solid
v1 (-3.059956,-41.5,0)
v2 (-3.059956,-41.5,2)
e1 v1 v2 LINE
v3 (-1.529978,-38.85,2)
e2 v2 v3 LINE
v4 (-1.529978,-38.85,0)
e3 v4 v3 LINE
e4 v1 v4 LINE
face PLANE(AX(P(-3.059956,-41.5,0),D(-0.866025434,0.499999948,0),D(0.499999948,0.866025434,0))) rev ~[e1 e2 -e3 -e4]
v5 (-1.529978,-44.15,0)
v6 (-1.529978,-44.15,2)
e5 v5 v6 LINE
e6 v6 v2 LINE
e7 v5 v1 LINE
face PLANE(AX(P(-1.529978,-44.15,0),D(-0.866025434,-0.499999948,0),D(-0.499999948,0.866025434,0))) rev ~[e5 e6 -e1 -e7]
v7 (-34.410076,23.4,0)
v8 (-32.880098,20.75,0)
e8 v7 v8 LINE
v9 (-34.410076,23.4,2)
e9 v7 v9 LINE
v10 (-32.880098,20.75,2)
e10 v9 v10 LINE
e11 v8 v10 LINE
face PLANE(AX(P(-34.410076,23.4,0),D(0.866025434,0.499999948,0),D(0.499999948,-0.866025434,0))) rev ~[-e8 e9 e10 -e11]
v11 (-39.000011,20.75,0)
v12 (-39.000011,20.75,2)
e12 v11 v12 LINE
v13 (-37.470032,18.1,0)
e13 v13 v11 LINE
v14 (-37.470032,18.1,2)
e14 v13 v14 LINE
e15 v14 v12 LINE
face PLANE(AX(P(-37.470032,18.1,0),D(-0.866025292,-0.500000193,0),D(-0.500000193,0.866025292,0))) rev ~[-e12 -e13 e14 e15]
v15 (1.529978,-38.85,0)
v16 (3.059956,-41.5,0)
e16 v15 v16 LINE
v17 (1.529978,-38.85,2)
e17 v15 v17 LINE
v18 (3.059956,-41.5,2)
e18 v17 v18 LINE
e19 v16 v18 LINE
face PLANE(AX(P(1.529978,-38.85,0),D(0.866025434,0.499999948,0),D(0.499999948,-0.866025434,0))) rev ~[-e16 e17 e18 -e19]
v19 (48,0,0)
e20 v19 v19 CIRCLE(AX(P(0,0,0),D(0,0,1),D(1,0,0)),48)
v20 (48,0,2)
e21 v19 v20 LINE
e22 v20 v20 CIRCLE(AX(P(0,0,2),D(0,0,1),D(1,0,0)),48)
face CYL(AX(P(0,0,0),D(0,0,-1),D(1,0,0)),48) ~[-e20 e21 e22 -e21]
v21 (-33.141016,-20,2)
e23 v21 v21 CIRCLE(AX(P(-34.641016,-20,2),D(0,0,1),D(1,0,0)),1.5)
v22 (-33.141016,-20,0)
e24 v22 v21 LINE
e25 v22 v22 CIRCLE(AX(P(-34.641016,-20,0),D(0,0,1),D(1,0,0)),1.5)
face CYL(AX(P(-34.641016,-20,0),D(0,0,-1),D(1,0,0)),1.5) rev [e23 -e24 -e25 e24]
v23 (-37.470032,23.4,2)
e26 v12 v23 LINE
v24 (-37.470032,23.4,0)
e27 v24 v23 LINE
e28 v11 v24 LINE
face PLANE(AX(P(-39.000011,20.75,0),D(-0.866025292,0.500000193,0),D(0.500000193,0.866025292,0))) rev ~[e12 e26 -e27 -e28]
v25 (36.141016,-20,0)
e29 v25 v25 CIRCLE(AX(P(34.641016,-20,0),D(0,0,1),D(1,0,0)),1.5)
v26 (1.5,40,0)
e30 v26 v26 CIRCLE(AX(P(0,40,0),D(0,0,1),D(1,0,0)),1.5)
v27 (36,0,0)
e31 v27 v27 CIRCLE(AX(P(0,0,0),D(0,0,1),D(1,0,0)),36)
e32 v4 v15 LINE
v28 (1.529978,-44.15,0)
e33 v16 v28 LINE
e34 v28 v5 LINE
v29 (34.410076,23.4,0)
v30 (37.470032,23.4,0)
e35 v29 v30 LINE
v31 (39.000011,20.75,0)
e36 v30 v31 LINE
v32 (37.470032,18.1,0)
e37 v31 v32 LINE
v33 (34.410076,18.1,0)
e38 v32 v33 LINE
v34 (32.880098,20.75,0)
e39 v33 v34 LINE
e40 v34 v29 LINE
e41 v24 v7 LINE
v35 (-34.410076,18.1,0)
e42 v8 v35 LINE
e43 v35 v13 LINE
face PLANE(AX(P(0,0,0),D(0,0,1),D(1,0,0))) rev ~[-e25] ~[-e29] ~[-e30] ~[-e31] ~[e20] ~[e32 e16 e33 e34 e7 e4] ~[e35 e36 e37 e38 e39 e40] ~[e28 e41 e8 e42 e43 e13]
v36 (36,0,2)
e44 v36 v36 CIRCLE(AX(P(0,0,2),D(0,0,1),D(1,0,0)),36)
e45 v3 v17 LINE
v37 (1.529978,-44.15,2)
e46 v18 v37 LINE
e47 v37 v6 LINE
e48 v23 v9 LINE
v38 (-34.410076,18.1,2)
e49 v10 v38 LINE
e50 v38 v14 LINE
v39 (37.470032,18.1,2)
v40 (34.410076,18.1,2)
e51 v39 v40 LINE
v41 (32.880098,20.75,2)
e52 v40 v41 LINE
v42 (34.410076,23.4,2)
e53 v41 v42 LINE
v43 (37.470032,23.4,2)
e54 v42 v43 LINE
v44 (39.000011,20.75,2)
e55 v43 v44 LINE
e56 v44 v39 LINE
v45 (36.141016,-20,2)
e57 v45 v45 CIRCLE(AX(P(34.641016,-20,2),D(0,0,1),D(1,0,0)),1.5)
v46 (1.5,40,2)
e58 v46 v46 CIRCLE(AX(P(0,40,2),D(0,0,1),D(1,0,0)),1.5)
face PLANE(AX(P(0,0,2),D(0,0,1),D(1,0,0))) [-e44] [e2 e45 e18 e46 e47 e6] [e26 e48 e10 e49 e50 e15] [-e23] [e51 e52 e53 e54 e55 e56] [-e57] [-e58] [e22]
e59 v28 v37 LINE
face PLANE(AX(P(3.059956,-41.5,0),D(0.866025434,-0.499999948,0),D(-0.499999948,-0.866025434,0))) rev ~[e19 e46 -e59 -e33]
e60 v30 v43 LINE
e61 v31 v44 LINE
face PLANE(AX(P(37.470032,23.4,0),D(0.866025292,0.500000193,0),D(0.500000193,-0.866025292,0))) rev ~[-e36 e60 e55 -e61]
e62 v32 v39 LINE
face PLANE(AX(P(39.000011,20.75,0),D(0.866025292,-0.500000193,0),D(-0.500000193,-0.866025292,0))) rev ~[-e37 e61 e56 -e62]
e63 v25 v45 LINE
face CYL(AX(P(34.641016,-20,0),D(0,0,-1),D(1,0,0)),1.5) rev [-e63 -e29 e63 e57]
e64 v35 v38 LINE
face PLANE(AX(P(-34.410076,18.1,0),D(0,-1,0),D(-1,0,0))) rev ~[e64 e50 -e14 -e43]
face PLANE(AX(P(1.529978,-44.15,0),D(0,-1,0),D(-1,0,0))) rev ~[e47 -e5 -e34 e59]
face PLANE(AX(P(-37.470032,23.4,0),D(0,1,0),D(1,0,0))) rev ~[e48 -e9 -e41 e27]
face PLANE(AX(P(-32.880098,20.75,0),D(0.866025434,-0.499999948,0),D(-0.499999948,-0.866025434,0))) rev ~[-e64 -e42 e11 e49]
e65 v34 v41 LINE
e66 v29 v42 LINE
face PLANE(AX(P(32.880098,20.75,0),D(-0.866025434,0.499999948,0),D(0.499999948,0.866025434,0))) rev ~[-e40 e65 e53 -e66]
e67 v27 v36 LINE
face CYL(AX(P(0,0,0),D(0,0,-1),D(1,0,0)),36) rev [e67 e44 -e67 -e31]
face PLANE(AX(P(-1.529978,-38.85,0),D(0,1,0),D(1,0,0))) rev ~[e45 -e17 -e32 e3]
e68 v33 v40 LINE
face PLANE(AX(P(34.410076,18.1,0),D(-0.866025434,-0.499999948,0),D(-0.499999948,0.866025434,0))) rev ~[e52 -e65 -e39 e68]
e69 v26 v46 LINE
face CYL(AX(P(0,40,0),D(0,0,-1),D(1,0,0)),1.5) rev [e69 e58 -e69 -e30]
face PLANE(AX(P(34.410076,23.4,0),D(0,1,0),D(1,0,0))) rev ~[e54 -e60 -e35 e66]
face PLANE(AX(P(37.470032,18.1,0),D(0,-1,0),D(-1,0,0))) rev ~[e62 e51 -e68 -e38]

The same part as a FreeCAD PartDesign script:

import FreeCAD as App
import Part
import Sketcher

V = App.Vector
Q = App.Units.Quantity

doc = App.newDocument("Part")
body = doc.addObject("PartDesign::Body", "Body")

# Sketch on XY plane
sketch1 = body.newObject("Sketcher::SketchObject", "Sketch")
sketch1.AttachmentSupport = (doc.getObject("XY_Plane"), [""])
sketch1.MapMode = "FlatFace"
sketch1.addGeometry([
    Part.Circle(V(0, 0, 0), V(0, 0, 1), 48),  # 0
    Part.Circle(V(-34.641016, -20, 0), V(0, 0, 1), 1.5),  # 1
    Part.LineSegment(V(-1.529978, -44.15, 0), V(-3.059956, -41.5, 0)),  # 2
    Part.LineSegment(V(-3.059956, -41.5, 0), V(-1.529978, -38.85, 0)),  # 3
    Part.LineSegment(V(-1.529978, -38.85, 0), V(1.529978, -38.85, 0)),  # 4
    Part.LineSegment(V(1.529978, -38.85, 0), V(3.059956, -41.5, 0)),  # 5
    Part.LineSegment(V(3.059956, -41.5, 0), V(1.529978, -44.15, 0)),  # 6
    Part.LineSegment(V(1.529978, -44.15, 0), V(-1.529978, -44.15, 0)),  # 7
    Part.Circle(V(34.641016, -20, 0), V(0, 0, 1), 1.5),  # 8
    Part.LineSegment(V(-34.410076, 23.4, 0), V(-32.880098, 20.75, 0)),  # 9
    Part.LineSegment(V(-32.880098, 20.75, 0), V(-34.410076, 18.1, 0)),  # 10
    Part.LineSegment(V(-34.410076, 18.1, 0), V(-37.470032, 18.1, 0)),  # 11
    Part.LineSegment(V(-37.470032, 18.1, 0), V(-39.000011, 20.75, 0)),  # 12
    Part.LineSegment(V(-39.000011, 20.75, 0), V(-37.470032, 23.4, 0)),  # 13
    Part.LineSegment(V(-37.470032, 23.4, 0), V(-34.410076, 23.4, 0)),  # 14
    Part.Circle(V(0, 0, 0), V(0, 0, 1), 36),  # 15
    Part.Circle(V(0, 40, 0), V(0, 0, 1), 1.5),  # 16
    Part.LineSegment(V(37.470032, 18.1, 0), V(34.410076, 18.1, 0)),  # 17
    Part.LineSegment(V(34.410076, 18.1, 0), V(32.880098, 20.75, 0)),  # 18
    Part.LineSegment(V(32.880098, 20.75, 0), V(34.410076, 23.4, 0)),  # 19
    Part.LineSegment(V(34.410076, 23.4, 0), V(37.470032, 23.4, 0)),  # 20
    Part.LineSegment(V(37.470032, 23.4, 0), V(39.000011, 20.75, 0)),  # 21
    Part.LineSegment(V(39.000011, 20.75, 0), V(37.470032, 18.1, 0)),  # 22
], False)
sketch1.addConstraint([
    Sketcher.Constraint("Coincident", 2, 2, 3, 1),
    Sketcher.Constraint("Coincident", 3, 2, 4, 1),
    Sketcher.Constraint("Coincident", 4, 2, 5, 1),
    Sketcher.Constraint("Coincident", 5, 2, 6, 1),
    Sketcher.Constraint("Coincident", 6, 2, 7, 1),
    Sketcher.Constraint("Coincident", 7, 2, 2, 1),
    Sketcher.Constraint("Coincident", 9, 2, 10, 1),
    Sketcher.Constraint("Coincident", 10, 2, 11, 1),
    Sketcher.Constraint("Coincident", 11, 2, 12, 1),
    Sketcher.Constraint("Coincident", 12, 2, 13, 1),
    Sketcher.Constraint("Coincident", 13, 2, 14, 1),
    Sketcher.Constraint("Coincident", 14, 2, 9, 1),
    Sketcher.Constraint("Coincident", 17, 2, 18, 1),
    Sketcher.Constraint("Coincident", 18, 2, 19, 1),
    Sketcher.Constraint("Coincident", 19, 2, 20, 1),
    Sketcher.Constraint("Coincident", 20, 2, 21, 1),
    Sketcher.Constraint("Coincident", 21, 2, 22, 1),
    Sketcher.Constraint("Coincident", 22, 2, 17, 1),
    Sketcher.Constraint("Horizontal", 4),
    Sketcher.Constraint("Horizontal", 7),
    Sketcher.Constraint("Horizontal", 11),
    Sketcher.Constraint("Horizontal", 14),
    Sketcher.Constraint("Horizontal", 17),
    Sketcher.Constraint("Horizontal", 20),
    Sketcher.Constraint("Coincident", 0, 3, -1, 1),
    Sketcher.Constraint("Coincident", 15, 3, -1, 1),
    Sketcher.Constraint("Equal", 1, 8),
    Sketcher.Constraint("Equal", 8, 16),
    Sketcher.Constraint("Symmetric", 1, 3, 8, 3, -2),
    Sketcher.Constraint("Symmetric", 2, 2, 5, 2, -2),
    Sketcher.Constraint("Symmetric", 10, 2, 17, 2, -2),
    Sketcher.Constraint("Symmetric", 9, 2, 18, 2, -2),
    Sketcher.Constraint("Symmetric", 14, 2, 19, 2, -2),
    Sketcher.Constraint("Symmetric", 12, 2, 21, 2, -2),
    Sketcher.Constraint("PointOnObject", 16, 3, -2),
    Sketcher.Constraint("Parallel", 2, 5),
    Sketcher.Constraint("Parallel", 3, 6),
    Sketcher.Constraint("Parallel", 5, 9),
    Sketcher.Constraint("Parallel", 6, 10),
    Sketcher.Constraint("Parallel", 9, 12),
    Sketcher.Constraint("Parallel", 10, 13),
    Sketcher.Constraint("Parallel", 12, 18),
    Sketcher.Constraint("Parallel", 18, 21),
    Sketcher.Constraint("Parallel", 19, 22),
    Sketcher.Constraint("Horizontal", 9, 2, 12, 2),
    Sketcher.Constraint("Vertical", 4, 2, 6, 2),
    Sketcher.Constraint("Vertical", 11, 2, 13, 2),
    Sketcher.Constraint("Equal", 7, 11),
    Sketcher.Constraint("Equal", 6, 9),
    Sketcher.Constraint("Diameter", 0, 96.0),
    Sketcher.Constraint("Diameter", 1, 3.0),
    Sketcher.Constraint("Diameter", 15, 72.0),
    Sketcher.Constraint("Angle", 2, Q("119.999997 deg")),
    Sketcher.Constraint("DistanceY", 1, 3, -1, 1, 20.0),
    Sketcher.Constraint("DistanceY", -1, 1, 16, 3, 40.0),
    Sketcher.Constraint("DistanceY", 2, 2, -1, 1, 41.5),
    Sketcher.Constraint("DistanceY", -1, 1, 10, 2, 18.1),
    Sketcher.Constraint("DistanceY", -1, 1, 13, 2, 23.4),
    Sketcher.Constraint("DistanceX", 4, 1, 4, 2, 3.059956),
    Sketcher.Constraint("DistanceX", 12, 2, -1, 1, 39.000011),
    Sketcher.Constraint("DistanceX", 1, 3, 8, 3, 69.282032),
])
pad1 = body.newObject("PartDesign::Pad", "Pad")
pad1.Profile = sketch1
pad1.Length = 2

doc.recompute()
